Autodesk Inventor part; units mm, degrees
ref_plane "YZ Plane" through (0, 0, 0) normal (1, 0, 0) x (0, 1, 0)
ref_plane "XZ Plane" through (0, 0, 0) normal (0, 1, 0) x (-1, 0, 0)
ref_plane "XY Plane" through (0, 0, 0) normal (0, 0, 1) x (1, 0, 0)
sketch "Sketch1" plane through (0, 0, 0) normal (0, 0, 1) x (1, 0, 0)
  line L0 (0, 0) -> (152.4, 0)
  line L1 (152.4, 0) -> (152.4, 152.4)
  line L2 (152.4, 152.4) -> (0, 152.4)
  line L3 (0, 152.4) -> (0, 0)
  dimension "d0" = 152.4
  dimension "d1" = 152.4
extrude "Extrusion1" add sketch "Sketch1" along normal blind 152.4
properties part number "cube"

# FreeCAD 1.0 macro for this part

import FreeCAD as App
import Part
import Sketcher

V = App.Vector
Q = App.Units.Quantity


def add_polygon(sketch, points):
    """Adds a closed chain of lines whose ends are joined by coincident constraints."""
    first, n = sketch.GeometryCount, len(points)
    for a, b in zip(points, points[1:] + points[:1]):
        sketch.addGeometry(Part.LineSegment(App.Vector(*a, 0), App.Vector(*b, 0)), False)
    for i in range(n):
        sketch.addConstraint(Sketcher.Constraint("Coincident", first + i, 2, first + (i + 1) % n, 1))

doc = App.newDocument("Part")
body = doc.addObject("PartDesign::Body", "Body")

sketch1 = body.newObject("Sketcher::SketchObject", "Sketch")
sketch1.AttachmentSupport = (doc.getObject("XY_Plane"), [""])
sketch1.MapMode = "FlatFace"
add_polygon(sketch1, [(0, 152), (0, 0), (152, 0), (152, 152)])
sketch1.addConstraint([
    Sketcher.Constraint("Vertical", 0),
    Sketcher.Constraint("Horizontal", 1),
    Sketcher.Constraint("Vertical", 2),
    Sketcher.Constraint("Horizontal", 3),
    Sketcher.Constraint("Coincident", 0, 2, -1, 1),
    Sketcher.Constraint("Equal", 3, 0),
    Sketcher.Constraint("DistanceX", 1, 1, 1, 2, Q("6 in")),
])
pad1 = body.newObject("PartDesign::Pad", "Pad")
pad1.Profile = sketch1
pad1.Length = Q("6 in")

doc.recompute()
